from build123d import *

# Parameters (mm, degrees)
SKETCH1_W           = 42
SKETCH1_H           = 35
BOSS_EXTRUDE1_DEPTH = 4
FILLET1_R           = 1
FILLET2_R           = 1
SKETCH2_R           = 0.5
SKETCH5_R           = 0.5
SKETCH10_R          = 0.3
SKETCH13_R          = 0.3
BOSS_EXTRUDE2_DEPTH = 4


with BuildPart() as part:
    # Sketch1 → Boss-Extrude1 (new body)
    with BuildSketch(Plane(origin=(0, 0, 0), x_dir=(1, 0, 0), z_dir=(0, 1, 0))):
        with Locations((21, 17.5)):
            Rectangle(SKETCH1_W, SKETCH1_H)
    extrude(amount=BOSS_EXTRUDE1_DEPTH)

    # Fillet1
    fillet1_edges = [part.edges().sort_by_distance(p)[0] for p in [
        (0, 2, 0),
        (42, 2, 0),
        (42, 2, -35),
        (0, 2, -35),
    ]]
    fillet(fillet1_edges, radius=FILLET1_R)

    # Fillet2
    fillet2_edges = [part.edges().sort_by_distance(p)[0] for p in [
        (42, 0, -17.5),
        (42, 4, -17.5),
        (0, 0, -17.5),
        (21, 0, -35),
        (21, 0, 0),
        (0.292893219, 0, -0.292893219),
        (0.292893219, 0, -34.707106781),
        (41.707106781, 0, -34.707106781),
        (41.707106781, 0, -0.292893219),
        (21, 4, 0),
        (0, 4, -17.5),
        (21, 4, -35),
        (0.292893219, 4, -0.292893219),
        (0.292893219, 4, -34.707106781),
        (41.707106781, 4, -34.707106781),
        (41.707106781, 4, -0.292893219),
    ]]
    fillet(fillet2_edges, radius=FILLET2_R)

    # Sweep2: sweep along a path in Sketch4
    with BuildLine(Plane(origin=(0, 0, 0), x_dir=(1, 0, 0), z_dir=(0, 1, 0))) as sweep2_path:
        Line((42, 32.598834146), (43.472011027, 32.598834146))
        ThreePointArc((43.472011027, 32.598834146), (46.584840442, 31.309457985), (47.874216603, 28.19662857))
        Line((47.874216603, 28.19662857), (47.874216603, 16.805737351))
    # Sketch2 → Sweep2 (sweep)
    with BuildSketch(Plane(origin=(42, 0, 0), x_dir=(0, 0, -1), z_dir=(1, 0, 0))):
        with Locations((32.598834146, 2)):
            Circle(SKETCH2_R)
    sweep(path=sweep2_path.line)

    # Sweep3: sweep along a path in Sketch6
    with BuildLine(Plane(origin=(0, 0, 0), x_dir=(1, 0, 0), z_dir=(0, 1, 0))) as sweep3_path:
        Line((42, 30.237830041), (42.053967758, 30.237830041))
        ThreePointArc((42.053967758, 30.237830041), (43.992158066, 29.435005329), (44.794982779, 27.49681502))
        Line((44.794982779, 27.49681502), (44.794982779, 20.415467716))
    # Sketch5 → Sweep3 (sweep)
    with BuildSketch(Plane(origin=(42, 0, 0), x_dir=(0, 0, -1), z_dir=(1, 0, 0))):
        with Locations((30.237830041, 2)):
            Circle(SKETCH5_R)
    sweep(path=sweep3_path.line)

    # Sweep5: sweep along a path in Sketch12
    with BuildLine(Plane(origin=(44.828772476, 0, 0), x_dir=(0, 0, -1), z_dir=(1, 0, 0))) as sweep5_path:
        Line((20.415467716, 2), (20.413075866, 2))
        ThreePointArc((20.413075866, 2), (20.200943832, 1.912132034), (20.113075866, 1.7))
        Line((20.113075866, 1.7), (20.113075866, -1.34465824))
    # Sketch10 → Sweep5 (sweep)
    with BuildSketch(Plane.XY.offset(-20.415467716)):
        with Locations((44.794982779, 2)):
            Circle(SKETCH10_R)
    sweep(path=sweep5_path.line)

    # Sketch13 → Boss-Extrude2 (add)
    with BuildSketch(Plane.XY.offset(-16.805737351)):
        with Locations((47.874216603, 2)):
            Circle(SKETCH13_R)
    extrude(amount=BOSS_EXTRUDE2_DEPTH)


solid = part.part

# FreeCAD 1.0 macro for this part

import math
import FreeCAD as App
import Part
import Sketcher
from FreeCAD import Vector
Q = App.Units.Quantity


def edges_at(feature, points):
    """Names of the edges that pass closest to the given points."""
    edges = feature.Shape.Edges
    near = lambda p: min(range(len(edges)), key=lambda i: edges[i].distToShape(Part.Vertex(*p))[0])
    return sorted({f"Edge{near(p) + 1}" for p in points})

doc = App.newDocument("Part")
body = doc.addObject("PartDesign::Body", "Body")

# Sketch on XZ plane
sketch1 = body.newObject("Sketcher::SketchObject", "Sketch")
sketch1.AttachmentSupport = (doc.getObject("XZ_Plane"), [""])
sketch1.MapMode = "FlatFace"
sketch1.addGeometry([
    Part.LineSegment(Vector(0, -35, 0), Vector(0, 0, 0)),
    Part.LineSegment(Vector(0, 0, 0), Vector(42, 0, 0)),
    Part.LineSegment(Vector(42, 0, 0), Vector(42, -35, 0)),
    Part.LineSegment(Vector(42, -35, 0), Vector(0, -35, 0)),
], False)
sketch1.addConstraint([
    Sketcher.Constraint("Coincident", 0, 2, 1, 1),
    Sketcher.Constraint("Coincident", 1, 2, 2, 1),
    Sketcher.Constraint("Coincident", 2, 2, 3, 1),
    Sketcher.Constraint("Coincident", 3, 2, 0, 1),
    Sketcher.Constraint("Vertical", 0),
    Sketcher.Constraint("Horizontal", 1),
    Sketcher.Constraint("Vertical", 2),
    Sketcher.Constraint("Horizontal", 3),
    Sketcher.Constraint("Coincident", 0, 2, -1, 1),
    Sketcher.Constraint("DistanceX", 1, 1, 1, 2, Q("42 mm")),
    Sketcher.Constraint("DistanceY", 0, 1, 0, 2, Q("35 mm")),
])
pad1 = body.newObject("PartDesign::Pad", "Pad")
pad1.Profile = sketch1
pad1.Length = 4
pad1.Reversed = True
doc.recompute()

fillet = body.newObject("PartDesign::Fillet", "Fillet")
fillet.Base = (pad1, edges_at(pad1, [
    (0, 2, 0),
    (42, 2, 0),
    (42, 2, -35),
    (0, 2, -35),
]))
fillet.Radius = 1
doc.recompute()

fillet2 = body.newObject("PartDesign::Fillet", "Fillet001")
fillet2.Base = (fillet, edges_at(fillet, [
    (42, 0, -17.5),
    (42, 4, -17.5),
    (0, 0, -17.5),
    (21, 0, -35),
    (21, 0, 0),
    (0.293, 0, -0.293),
    (0.293, 0, -34.707),
    (41.707, 0, -34.707),
    (41.707, 0, -0.293),
    (21, 4, 0),
    (0, 4, -17.5),
    (21, 4, -35),
    (0.293, 4, -0.293),
    (0.293, 4, -34.707),
    (41.707, 4, -34.707),
    (41.707, 4, -0.293),
]))
fillet2.Radius = 1

# Sketch on YZ plane
sketch2 = body.newObject("Sketcher::SketchObject", "Sketch001")
sketch2.AttachmentSupport = (doc.getObject("YZ_Plane"), [""])
sketch2.MapMode = "FlatFace"
sketch2.AttachmentOffset = App.Placement(Vector(0, 0, 42), App.Rotation())
sketch2.addGeometry(Part.Circle(Vector(2, -32.6, 0), Vector(0, 0, 1), 0.5), False)
sketch2.addConstraint([
    Sketcher.Constraint("Diameter", 0, Q("1 mm")),
    Sketcher.Constraint("DistanceX", -1, 1, 0, 3, Q("2 mm")),
    Sketcher.Constraint("DistanceY", 0, 3, -1, 1, Q("32.598834 mm")),
])

# Sketch on XZ plane
sketch3 = body.newObject("Sketcher::SketchObject", "Sketch002")
sketch3.AttachmentSupport = (doc.getObject("XZ_Plane"), [""])
sketch3.MapMode = "FlatFace"
sketch3.addGeometry([
    Part.LineSegment(Vector(42, -32.6, 0), Vector(43.5, -32.6, 0)),
    Part.ArcOfCircle(Part.Circle(Vector(43.5, -28.2, 0), Vector(0, 0, 1), 4.4), math.radians(-90), math.radians(0)),
    Part.LineSegment(Vector(47.9, -28.2, 0), Vector(47.9, -16.8, 0)),
], False)
sketch3.addConstraint([
    Sketcher.Constraint("Tangent", 0, 2, 1, 1),
    Sketcher.Constraint("Tangent", 1, 2, 2, 1),
    Sketcher.Constraint("Horizontal", 0),
    Sketcher.Constraint("Vertical", 2),
    Sketcher.Constraint("DistanceX", -1, 1, 0, 1, Q("42 mm")),
    Sketcher.Constraint("Radius", 1, Q("4.402206 mm")),
    Sketcher.Constraint("DistanceX", 0, 1, 0, 2, Q("1.472011 mm")),
    Sketcher.Constraint("DistanceY", 2, 1, 2, 2, Q("11.390891 mm")),
    Sketcher.Constraint("DistanceY", 1, 3, -1, 1, Q("28.196629 mm")),
])
doc.recompute()

additivepipe = body.newObject("PartDesign::AdditivePipe", "AdditivePipe")
additivepipe.Profile = sketch2
additivepipe.Spine = (sketch3, ["Edge1", "Edge2", "Edge3"])

# Sketch on YZ plane
sketch4 = body.newObject("Sketcher::SketchObject", "Sketch003")
sketch4.AttachmentSupport = (doc.getObject("YZ_Plane"), [""])
sketch4.MapMode = "FlatFace"
sketch4.AttachmentOffset = App.Placement(Vector(0, 0, 42), App.Rotation())
sketch4.addGeometry(Part.Circle(Vector(2, -30.2, 0), Vector(0, 0, 1), 0.5), False)
sketch4.addConstraint([
    Sketcher.Constraint("Diameter", 0, Q("1 mm")),
    Sketcher.Constraint("DistanceX", -1, 1, 0, 3, Q("2 mm")),
    Sketcher.Constraint("DistanceY", 0, 3, -1, 1, Q("30.23783 mm")),
])

# Sketch on XZ plane
sketch5 = body.newObject("Sketcher::SketchObject", "Sketch004")
sketch5.AttachmentSupport = (doc.getObject("XZ_Plane"), [""])
sketch5.MapMode = "FlatFace"
sketch5.addGeometry([
    Part.LineSegment(Vector(42, -30.24, 0), Vector(42.05, -30.24, 0)),
    Part.ArcOfCircle(Part.Circle(Vector(42.05, -27.5, 0), Vector(0, 0, 1), 2.74), math.radians(-90), math.radians(0)),
    Part.LineSegment(Vector(44.79, -27.5, 0), Vector(44.79, -20.42, 0)),
], False)
sketch5.addConstraint([
    Sketcher.Constraint("Tangent", 0, 2, 1, 1),
    Sketcher.Constraint("Tangent", 1, 2, 2, 1),
    Sketcher.Constraint("Horizontal", 0),
    Sketcher.Constraint("Vertical", 2),
    Sketcher.Constraint("DistanceX", -1, 1, 0, 1, Q("42 mm")),
    Sketcher.Constraint("Radius", 1, Q("2.741015 mm")),
    Sketcher.Constraint("DistanceX", 0, 1, 0, 2, Q("0.053968 mm")),
    Sketcher.Constraint("DistanceY", 2, 1, 2, 2, Q("7.081347 mm")),
    Sketcher.Constraint("DistanceY", 0, 1, -1, 1, Q("30.23783 mm")),
])
doc.recompute()

additivepipe2 = body.newObject("PartDesign::AdditivePipe", "AdditivePipe001")
additivepipe2.Profile = sketch4
additivepipe2.Spine = (sketch5, ["Edge1", "Edge2", "Edge3"])

# Sketch on XY plane
sketch6 = body.newObject("Sketcher::SketchObject", "Sketch005")
sketch6.AttachmentSupport = (doc.getObject("XY_Plane"), [""])
sketch6.MapMode = "FlatFace"
sketch6.AttachmentOffset = App.Placement(Vector(0, 0, -20.415468), App.Rotation())
sketch6.addGeometry(Part.Circle(Vector(44.79, 2, 0), Vector(0, 0, 1), 0.3), False)
sketch6.addConstraint([
    Sketcher.Constraint("Diameter", 0, Q("0.6 mm")),
    Sketcher.Constraint("DistanceY", -1, 1, 0, 3, Q("2 mm")),
    Sketcher.Constraint("DistanceX", -1, 1, 0, 3, Q("44.794983 mm")),
])

# Sketch on YZ plane
sketch7 = body.newObject("Sketcher::SketchObject", "Sketch006")
sketch7.AttachmentSupport = (doc.getObject("YZ_Plane"), [""])
sketch7.MapMode = "FlatFace"
sketch7.AttachmentOffset = App.Placement(Vector(0, 0, 44.828772), App.Rotation())
sketch7.addGeometry([
    Part.LineSegment(Vector(2, -20.4155, 0), Vector(2, -20.4131, 0)),
    Part.ArcOfCircle(Part.Circle(Vector(1.7, -20.4131, 0), Vector(0, 0, 1), 0.3), math.radians(0), math.radians(90)),
    Part.LineSegment(Vector(1.7, -20.1131, 0), Vector(-1.3447, -20.1131, 0)),
], False)
sketch7.addConstraint([
    Sketcher.Constraint("Tangent", 0, 2, 1, 1),
    Sketcher.Constraint("Tangent", 1, 2, 2, 1),
    Sketcher.Constraint("Horizontal", 2),
    Sketcher.Constraint("Horizontal", 1, 3, 0, 2),
    Sketcher.Constraint("Radius", 1, Q("0.3 mm")),
    Sketcher.Constraint("DistanceX", -1, 1, 0, 1, Q("2 mm")),
    Sketcher.Constraint("DistanceX", 2, 2, 2, 1, Q("3.044658 mm")),
    Sketcher.Constraint("DistanceY", 0, 1, 0, 2, Q("0.002392 mm")),
    Sketcher.Constraint("DistanceY", 1, 3, -1, 1, Q("20.413076 mm")),
])
doc.recompute()

additivepipe3 = body.newObject("PartDesign::AdditivePipe", "AdditivePipe002")
additivepipe3.Profile = sketch6
additivepipe3.Spine = (sketch7, ["Edge1", "Edge2", "Edge3"])

# Sketch on XY plane
sketch8 = body.newObject("Sketcher::SketchObject", "Sketch007")
sketch8.AttachmentSupport = (doc.getObject("XY_Plane"), [""])
sketch8.MapMode = "FlatFace"
sketch8.AttachmentOffset = App.Placement(Vector(0, 0, -16.805737), App.Rotation())
sketch8.addGeometry(Part.Circle(Vector(47.87, 2, 0), Vector(0, 0, 1), 0.3), False)
sketch8.addConstraint([
    Sketcher.Constraint("Diameter", 0, Q("0.6 mm")),
    Sketcher.Constraint("DistanceY", -1, 1, 0, 3, Q("2 mm")),
    Sketcher.Constraint("DistanceX", -1, 1, 0, 3, Q("47.874217 mm")),
])
pad2 = body.newObject("PartDesign::Pad", "Pad001")
pad2.Profile = sketch8
pad2.Length = 4

doc.recompute()
